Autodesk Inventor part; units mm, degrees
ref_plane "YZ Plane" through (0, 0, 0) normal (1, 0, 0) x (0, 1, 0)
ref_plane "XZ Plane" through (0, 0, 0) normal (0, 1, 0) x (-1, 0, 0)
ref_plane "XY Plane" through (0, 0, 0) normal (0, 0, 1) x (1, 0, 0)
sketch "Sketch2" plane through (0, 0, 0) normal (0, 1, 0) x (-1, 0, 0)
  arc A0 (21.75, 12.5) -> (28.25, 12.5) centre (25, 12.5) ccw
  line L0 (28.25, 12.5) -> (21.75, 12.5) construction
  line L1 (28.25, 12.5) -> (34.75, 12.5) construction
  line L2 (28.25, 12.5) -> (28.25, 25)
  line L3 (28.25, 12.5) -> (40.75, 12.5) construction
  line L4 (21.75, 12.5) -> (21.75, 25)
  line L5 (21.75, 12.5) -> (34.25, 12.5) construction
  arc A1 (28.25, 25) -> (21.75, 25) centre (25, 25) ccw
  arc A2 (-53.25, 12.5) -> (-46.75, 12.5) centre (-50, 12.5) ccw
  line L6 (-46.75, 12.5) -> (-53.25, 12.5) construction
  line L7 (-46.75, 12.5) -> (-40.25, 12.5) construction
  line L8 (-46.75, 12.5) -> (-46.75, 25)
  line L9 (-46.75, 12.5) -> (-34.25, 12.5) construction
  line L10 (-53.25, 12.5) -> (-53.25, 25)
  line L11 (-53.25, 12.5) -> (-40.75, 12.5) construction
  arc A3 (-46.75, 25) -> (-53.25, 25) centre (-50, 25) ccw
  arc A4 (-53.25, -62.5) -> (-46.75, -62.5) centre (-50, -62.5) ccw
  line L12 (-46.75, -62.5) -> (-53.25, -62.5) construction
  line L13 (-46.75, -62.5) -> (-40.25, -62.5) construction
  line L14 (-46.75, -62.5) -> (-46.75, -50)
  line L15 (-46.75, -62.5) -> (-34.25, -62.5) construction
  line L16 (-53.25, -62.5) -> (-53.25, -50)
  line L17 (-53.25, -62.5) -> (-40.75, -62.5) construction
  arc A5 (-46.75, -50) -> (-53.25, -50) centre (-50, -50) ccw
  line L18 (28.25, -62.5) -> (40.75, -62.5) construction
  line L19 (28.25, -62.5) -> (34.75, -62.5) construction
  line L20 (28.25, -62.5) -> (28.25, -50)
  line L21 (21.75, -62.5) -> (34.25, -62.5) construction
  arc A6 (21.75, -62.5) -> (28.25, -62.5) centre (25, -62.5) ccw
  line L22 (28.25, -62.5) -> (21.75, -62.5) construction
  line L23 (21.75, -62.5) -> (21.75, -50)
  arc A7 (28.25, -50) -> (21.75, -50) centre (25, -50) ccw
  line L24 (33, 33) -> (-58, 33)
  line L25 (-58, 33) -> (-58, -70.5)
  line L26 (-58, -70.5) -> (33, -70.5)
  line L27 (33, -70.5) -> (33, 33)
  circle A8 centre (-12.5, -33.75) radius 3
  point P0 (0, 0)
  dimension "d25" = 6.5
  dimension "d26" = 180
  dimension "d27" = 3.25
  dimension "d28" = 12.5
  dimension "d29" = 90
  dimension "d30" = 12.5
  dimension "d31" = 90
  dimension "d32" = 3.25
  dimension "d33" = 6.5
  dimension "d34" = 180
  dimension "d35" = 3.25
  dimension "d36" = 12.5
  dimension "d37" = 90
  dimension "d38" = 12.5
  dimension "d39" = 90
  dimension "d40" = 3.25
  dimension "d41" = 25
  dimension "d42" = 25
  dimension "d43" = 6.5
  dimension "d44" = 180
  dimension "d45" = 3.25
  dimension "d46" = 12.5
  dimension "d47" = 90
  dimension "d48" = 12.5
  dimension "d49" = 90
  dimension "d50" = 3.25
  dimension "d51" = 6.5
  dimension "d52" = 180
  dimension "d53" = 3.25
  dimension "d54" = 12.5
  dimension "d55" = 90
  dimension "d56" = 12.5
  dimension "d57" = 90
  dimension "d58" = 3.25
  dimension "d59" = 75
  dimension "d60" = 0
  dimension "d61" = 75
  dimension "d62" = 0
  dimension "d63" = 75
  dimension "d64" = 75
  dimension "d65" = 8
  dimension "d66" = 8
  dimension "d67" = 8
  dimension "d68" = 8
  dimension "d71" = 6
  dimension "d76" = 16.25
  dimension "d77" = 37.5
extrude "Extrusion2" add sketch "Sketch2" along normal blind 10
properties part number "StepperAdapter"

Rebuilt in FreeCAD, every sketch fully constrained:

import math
import FreeCAD as App
import Part
import Sketcher
from FreeCAD import Vector
Q = App.Units.Quantity


def add_polygon(sketch, points):
    """Adds a closed chain of lines whose ends are joined by coincident constraints."""
    first, n = sketch.GeometryCount, len(points)
    for a, b in zip(points, points[1:] + points[:1]):
        sketch.addGeometry(Part.LineSegment(App.Vector(*a, 0), App.Vector(*b, 0)), False)
    for i in range(n):
        sketch.addConstraint(Sketcher.Constraint("Coincident", first + i, 2, first + (i + 1) % n, 1))

doc = App.newDocument("Part")
body = doc.addObject("PartDesign::Body", "Body")

sketch1 = body.newObject("Sketcher::SketchObject", "Sketch")
sketch1.AttachmentSupport = (doc.getObject("XZ_Plane"), [""])
sketch1.MapMode = "FlatFace"
add_polygon(sketch1, [(-33, -70.5), (-33, 33), (58, 33), (58, -70.5)])
sketch1.addGeometry(Part.ArcOfCircle(Part.Circle(Vector(50, -62.5, 0), Vector(0, 0, 1), 3.2), math.radians(180), math.radians(360)), False)
sketch1.addGeometry(Part.LineSegment(Vector(53.2, -62.5, 0), Vector(53.2, -50, 0)), False)
sketch1.addGeometry(Part.ArcOfCircle(Part.Circle(Vector(50, -50, 0), Vector(0, 0, 1), 3.2), math.radians(0), math.radians(180)), False)
sketch1.addGeometry(Part.LineSegment(Vector(46.8, -50, 0), Vector(46.8, -62.5, 0)), False)
sketch1.addGeometry(Part.LineSegment(Vector(-28.2, -50, 0), Vector(-28.2, -62.5, 0)), False)
sketch1.addGeometry(Part.ArcOfCircle(Part.Circle(Vector(-25, -62.5, 0), Vector(0, 0, 1), 3.2), math.radians(180), math.radians(360)), False)
sketch1.addGeometry(Part.LineSegment(Vector(-21.8, -62.5, 0), Vector(-21.8, -50, 0)), False)
sketch1.addGeometry(Part.ArcOfCircle(Part.Circle(Vector(-25, -50, 0), Vector(0, 0, 1), 3.2), math.radians(0), math.radians(180)), False)
sketch1.addGeometry(Part.Circle(Vector(12.5, -33.8, 0), Vector(0, 0, 1), 3), False)
sketch1.addGeometry(Part.ArcOfCircle(Part.Circle(Vector(50, 12.5, 0), Vector(0, 0, 1), 3.2), math.radians(180), math.radians(360)), False)
sketch1.addGeometry(Part.LineSegment(Vector(53.2, 12.5, 0), Vector(53.2, 25, 0)), False)
sketch1.addGeometry(Part.ArcOfCircle(Part.Circle(Vector(50, 25, 0), Vector(0, 0, 1), 3.2), math.radians(0), math.radians(180)), False)
sketch1.addGeometry(Part.LineSegment(Vector(46.8, 25, 0), Vector(46.8, 12.5, 0)), False)
sketch1.addGeometry(Part.ArcOfCircle(Part.Circle(Vector(-25, 12.5, 0), Vector(0, 0, 1), 3.2), math.radians(180), math.radians(360)), False)
sketch1.addGeometry(Part.LineSegment(Vector(-21.8, 12.5, 0), Vector(-21.8, 25, 0)), False)
sketch1.addGeometry(Part.ArcOfCircle(Part.Circle(Vector(-25, 25, 0), Vector(0, 0, 1), 3.2), math.radians(0), math.radians(180)), False)
sketch1.addGeometry(Part.LineSegment(Vector(-28.2, 25, 0), Vector(-28.2, 12.5, 0)), False)
sketch1.addConstraint([
    Sketcher.Constraint("Tangent", 4, 2, 5, 1),
    Sketcher.Constraint("Tangent", 5, 2, 6, 1),
    Sketcher.Constraint("Tangent", 6, 2, 7, 1),
    Sketcher.Constraint("Tangent", 7, 2, 4, 1),
    Sketcher.Constraint("Tangent", 8, 2, 9, 1),
    Sketcher.Constraint("Tangent", 9, 2, 10, 1),
    Sketcher.Constraint("Tangent", 10, 2, 11, 1),
    Sketcher.Constraint("Tangent", 11, 2, 8, 1),
    Sketcher.Constraint("Tangent", 13, 2, 14, 1),
    Sketcher.Constraint("Tangent", 14, 2, 15, 1),
    Sketcher.Constraint("Tangent", 15, 2, 16, 1),
    Sketcher.Constraint("Tangent", 16, 2, 13, 1),
    Sketcher.Constraint("Tangent", 17, 2, 18, 1),
    Sketcher.Constraint("Tangent", 18, 2, 19, 1),
    Sketcher.Constraint("Tangent", 19, 2, 20, 1),
    Sketcher.Constraint("Tangent", 20, 2, 17, 1),
    Sketcher.Constraint("Vertical", 0),
    Sketcher.Constraint("Horizontal", 1),
    Sketcher.Constraint("Vertical", 2),
    Sketcher.Constraint("Horizontal", 3),
    Sketcher.Constraint("Vertical", 5),
    Sketcher.Constraint("Vertical", 7),
    Sketcher.Constraint("Vertical", 8),
    Sketcher.Constraint("Vertical", 10),
    Sketcher.Constraint("Vertical", 14),
    Sketcher.Constraint("Vertical", 16),
    Sketcher.Constraint("Vertical", 18),
    Sketcher.Constraint("Vertical", 20),
    Sketcher.Constraint("Equal", 6, 9),
    Sketcher.Constraint("Equal", 11, 13),
    Sketcher.Constraint("Equal", 15, 17),
    Sketcher.Constraint("Horizontal", 4, 3, 9, 3),
    Sketcher.Constraint("Horizontal", 6, 3, 11, 3),
    Sketcher.Constraint("Horizontal", 13, 3, 17, 3),
    Sketcher.Constraint("Horizontal", 15, 3, 19, 3),
    Sketcher.Constraint("Vertical", 6, 3, 13, 3),
    Sketcher.Constraint("Vertical", 11, 3, 17, 3),
    Sketcher.Constraint("Equal", 10, 14),
    Sketcher.Constraint("Diameter", 12, Q("6 mm")),
    Sketcher.Constraint("Radius", 4, Q("3.25 mm")),
    Sketcher.Constraint("DistanceY", 5, 1, 5, 2, Q("12.5 mm")),
    Sketcher.Constraint("DistanceX", 9, 3, -1, 1, Q("25 mm")),
    Sketcher.Constraint("DistanceY", -1, 1, 15, 3, Q("25 mm")),
    Sketcher.Constraint("DistanceX", 9, 3, 4, 3, Q("75 mm")),
    Sketcher.Constraint("DistanceY", 4, 3, 13, 3, Q("75 mm")),
    Sketcher.Constraint("DistanceX", 0, 2, 19, 3, Q("8 mm")),
    Sketcher.Constraint("DistanceY", 19, 3, 0, 2, Q("8 mm")),
    Sketcher.Constraint("DistanceX", 15, 3, 1, 2, Q("8 mm")),
    Sketcher.Constraint("DistanceY", 2, 2, 4, 3, Q("8 mm")),
    Sketcher.Constraint("DistanceX", -1, 1, 12, 3, Q("12.5 mm")),
    Sketcher.Constraint("DistanceY", 6, 3, 12, 3, Q("16.25 mm")),
])
pad1 = body.newObject("PartDesign::Pad", "Pad")
pad1.Profile = sketch1
pad1.Length = 10
pad1.Reversed = True

doc.recompute()
